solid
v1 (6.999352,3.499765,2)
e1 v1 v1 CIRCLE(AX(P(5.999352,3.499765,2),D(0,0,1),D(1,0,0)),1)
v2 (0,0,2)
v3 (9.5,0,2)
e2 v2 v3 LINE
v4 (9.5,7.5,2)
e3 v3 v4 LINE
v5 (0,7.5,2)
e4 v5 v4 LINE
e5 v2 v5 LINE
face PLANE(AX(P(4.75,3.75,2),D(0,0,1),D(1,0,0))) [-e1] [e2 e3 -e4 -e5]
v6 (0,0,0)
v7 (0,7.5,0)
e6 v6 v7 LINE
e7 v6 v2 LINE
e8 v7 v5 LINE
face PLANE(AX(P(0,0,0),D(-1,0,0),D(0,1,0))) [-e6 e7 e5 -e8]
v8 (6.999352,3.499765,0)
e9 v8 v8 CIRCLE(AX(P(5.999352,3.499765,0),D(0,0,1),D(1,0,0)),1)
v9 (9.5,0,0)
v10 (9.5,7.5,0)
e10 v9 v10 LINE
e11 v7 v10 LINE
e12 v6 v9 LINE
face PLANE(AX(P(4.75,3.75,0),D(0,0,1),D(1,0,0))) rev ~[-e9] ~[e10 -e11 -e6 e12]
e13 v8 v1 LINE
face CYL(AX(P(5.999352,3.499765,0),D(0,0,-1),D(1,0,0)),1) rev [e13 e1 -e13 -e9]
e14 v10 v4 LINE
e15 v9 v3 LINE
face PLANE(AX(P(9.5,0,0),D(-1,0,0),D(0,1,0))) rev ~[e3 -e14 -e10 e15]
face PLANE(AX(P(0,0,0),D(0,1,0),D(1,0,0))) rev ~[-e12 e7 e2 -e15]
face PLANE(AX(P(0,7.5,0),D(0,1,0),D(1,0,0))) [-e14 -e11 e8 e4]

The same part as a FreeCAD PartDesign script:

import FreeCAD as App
import Part
import Sketcher


def add_polygon(sketch, points):
    """Adds a closed chain of lines whose ends are joined by coincident constraints."""
    first, n = sketch.GeometryCount, len(points)
    for a, b in zip(points, points[1:] + points[:1]):
        sketch.addGeometry(Part.LineSegment(App.Vector(*a, 0), App.Vector(*b, 0)), False)
    for i in range(n):
        sketch.addConstraint(Sketcher.Constraint("Coincident", first + i, 2, first + (i + 1) % n, 1))

doc = App.newDocument("Part")
params = doc.addObject("Spreadsheet::Sheet", "Params")
for row, (alias, value) in enumerate([
    ("sketch1_diameter", "2 mm"),
    ("sketch1_width", "9.5 mm"),
    ("sketch1_height", "7.5 mm"),
    ("pad1_length", "2 mm"),
], start=1):
    params.set(f"A{row}", alias)
    params.set(f"B{row}", "=" + value)
    params.setAlias(f"B{row}", alias)

body = doc.addObject("PartDesign::Body", "Body")

# Sketch on XY plane
sketch1 = body.newObject("Sketcher::SketchObject", "Sketch")
sketch1.AttachmentSupport = (doc.getObject("XY_Plane"), [""])
sketch1.MapMode = "FlatFace"
add_polygon(sketch1, [(0, 7.5), (0, 0), (9.5, 0), (9.5, 7.5)])  # lines 0-3
sketch1.addGeometry(Part.Circle(App.Vector(6, 3.5, 0), App.Vector(0, 0, 1), 1), False)  # 4
sketch1.addConstraint(Sketcher.Constraint("Vertical", 0))
sketch1.addConstraint(Sketcher.Constraint("Horizontal", 1))
sketch1.addConstraint(Sketcher.Constraint("Vertical", 2))
sketch1.addConstraint(Sketcher.Constraint("Horizontal", 3))
sketch1.addConstraint(Sketcher.Constraint("Coincident", 0, 2, -1, 1))
sketch1.addConstraint(Sketcher.Constraint("Diameter", 4, 2.0))
sketch1.addConstraint(Sketcher.Constraint("DistanceX", 1, 1, 1, 2, 9.5))
sketch1.addConstraint(Sketcher.Constraint("DistanceY", 0, 2, 0, 1, 7.5))
sketch1.addConstraint(Sketcher.Constraint("DistanceX", 4, 3, 1, 2, 3.500648))
sketch1.addConstraint(Sketcher.Constraint("DistanceY", -1, 1, 4, 3, 3.499765))
sketch1.setExpression("Constraints[9]", "Params.sketch1_diameter")
sketch1.setExpression("Constraints[10]", "Params.sketch1_width")
sketch1.setExpression("Constraints[11]", "Params.sketch1_height")
pad1 = body.newObject("PartDesign::Pad", "Pad")
pad1.Profile = sketch1
pad1.setExpression("Length", "Params.pad1_length")

doc.recompute()
